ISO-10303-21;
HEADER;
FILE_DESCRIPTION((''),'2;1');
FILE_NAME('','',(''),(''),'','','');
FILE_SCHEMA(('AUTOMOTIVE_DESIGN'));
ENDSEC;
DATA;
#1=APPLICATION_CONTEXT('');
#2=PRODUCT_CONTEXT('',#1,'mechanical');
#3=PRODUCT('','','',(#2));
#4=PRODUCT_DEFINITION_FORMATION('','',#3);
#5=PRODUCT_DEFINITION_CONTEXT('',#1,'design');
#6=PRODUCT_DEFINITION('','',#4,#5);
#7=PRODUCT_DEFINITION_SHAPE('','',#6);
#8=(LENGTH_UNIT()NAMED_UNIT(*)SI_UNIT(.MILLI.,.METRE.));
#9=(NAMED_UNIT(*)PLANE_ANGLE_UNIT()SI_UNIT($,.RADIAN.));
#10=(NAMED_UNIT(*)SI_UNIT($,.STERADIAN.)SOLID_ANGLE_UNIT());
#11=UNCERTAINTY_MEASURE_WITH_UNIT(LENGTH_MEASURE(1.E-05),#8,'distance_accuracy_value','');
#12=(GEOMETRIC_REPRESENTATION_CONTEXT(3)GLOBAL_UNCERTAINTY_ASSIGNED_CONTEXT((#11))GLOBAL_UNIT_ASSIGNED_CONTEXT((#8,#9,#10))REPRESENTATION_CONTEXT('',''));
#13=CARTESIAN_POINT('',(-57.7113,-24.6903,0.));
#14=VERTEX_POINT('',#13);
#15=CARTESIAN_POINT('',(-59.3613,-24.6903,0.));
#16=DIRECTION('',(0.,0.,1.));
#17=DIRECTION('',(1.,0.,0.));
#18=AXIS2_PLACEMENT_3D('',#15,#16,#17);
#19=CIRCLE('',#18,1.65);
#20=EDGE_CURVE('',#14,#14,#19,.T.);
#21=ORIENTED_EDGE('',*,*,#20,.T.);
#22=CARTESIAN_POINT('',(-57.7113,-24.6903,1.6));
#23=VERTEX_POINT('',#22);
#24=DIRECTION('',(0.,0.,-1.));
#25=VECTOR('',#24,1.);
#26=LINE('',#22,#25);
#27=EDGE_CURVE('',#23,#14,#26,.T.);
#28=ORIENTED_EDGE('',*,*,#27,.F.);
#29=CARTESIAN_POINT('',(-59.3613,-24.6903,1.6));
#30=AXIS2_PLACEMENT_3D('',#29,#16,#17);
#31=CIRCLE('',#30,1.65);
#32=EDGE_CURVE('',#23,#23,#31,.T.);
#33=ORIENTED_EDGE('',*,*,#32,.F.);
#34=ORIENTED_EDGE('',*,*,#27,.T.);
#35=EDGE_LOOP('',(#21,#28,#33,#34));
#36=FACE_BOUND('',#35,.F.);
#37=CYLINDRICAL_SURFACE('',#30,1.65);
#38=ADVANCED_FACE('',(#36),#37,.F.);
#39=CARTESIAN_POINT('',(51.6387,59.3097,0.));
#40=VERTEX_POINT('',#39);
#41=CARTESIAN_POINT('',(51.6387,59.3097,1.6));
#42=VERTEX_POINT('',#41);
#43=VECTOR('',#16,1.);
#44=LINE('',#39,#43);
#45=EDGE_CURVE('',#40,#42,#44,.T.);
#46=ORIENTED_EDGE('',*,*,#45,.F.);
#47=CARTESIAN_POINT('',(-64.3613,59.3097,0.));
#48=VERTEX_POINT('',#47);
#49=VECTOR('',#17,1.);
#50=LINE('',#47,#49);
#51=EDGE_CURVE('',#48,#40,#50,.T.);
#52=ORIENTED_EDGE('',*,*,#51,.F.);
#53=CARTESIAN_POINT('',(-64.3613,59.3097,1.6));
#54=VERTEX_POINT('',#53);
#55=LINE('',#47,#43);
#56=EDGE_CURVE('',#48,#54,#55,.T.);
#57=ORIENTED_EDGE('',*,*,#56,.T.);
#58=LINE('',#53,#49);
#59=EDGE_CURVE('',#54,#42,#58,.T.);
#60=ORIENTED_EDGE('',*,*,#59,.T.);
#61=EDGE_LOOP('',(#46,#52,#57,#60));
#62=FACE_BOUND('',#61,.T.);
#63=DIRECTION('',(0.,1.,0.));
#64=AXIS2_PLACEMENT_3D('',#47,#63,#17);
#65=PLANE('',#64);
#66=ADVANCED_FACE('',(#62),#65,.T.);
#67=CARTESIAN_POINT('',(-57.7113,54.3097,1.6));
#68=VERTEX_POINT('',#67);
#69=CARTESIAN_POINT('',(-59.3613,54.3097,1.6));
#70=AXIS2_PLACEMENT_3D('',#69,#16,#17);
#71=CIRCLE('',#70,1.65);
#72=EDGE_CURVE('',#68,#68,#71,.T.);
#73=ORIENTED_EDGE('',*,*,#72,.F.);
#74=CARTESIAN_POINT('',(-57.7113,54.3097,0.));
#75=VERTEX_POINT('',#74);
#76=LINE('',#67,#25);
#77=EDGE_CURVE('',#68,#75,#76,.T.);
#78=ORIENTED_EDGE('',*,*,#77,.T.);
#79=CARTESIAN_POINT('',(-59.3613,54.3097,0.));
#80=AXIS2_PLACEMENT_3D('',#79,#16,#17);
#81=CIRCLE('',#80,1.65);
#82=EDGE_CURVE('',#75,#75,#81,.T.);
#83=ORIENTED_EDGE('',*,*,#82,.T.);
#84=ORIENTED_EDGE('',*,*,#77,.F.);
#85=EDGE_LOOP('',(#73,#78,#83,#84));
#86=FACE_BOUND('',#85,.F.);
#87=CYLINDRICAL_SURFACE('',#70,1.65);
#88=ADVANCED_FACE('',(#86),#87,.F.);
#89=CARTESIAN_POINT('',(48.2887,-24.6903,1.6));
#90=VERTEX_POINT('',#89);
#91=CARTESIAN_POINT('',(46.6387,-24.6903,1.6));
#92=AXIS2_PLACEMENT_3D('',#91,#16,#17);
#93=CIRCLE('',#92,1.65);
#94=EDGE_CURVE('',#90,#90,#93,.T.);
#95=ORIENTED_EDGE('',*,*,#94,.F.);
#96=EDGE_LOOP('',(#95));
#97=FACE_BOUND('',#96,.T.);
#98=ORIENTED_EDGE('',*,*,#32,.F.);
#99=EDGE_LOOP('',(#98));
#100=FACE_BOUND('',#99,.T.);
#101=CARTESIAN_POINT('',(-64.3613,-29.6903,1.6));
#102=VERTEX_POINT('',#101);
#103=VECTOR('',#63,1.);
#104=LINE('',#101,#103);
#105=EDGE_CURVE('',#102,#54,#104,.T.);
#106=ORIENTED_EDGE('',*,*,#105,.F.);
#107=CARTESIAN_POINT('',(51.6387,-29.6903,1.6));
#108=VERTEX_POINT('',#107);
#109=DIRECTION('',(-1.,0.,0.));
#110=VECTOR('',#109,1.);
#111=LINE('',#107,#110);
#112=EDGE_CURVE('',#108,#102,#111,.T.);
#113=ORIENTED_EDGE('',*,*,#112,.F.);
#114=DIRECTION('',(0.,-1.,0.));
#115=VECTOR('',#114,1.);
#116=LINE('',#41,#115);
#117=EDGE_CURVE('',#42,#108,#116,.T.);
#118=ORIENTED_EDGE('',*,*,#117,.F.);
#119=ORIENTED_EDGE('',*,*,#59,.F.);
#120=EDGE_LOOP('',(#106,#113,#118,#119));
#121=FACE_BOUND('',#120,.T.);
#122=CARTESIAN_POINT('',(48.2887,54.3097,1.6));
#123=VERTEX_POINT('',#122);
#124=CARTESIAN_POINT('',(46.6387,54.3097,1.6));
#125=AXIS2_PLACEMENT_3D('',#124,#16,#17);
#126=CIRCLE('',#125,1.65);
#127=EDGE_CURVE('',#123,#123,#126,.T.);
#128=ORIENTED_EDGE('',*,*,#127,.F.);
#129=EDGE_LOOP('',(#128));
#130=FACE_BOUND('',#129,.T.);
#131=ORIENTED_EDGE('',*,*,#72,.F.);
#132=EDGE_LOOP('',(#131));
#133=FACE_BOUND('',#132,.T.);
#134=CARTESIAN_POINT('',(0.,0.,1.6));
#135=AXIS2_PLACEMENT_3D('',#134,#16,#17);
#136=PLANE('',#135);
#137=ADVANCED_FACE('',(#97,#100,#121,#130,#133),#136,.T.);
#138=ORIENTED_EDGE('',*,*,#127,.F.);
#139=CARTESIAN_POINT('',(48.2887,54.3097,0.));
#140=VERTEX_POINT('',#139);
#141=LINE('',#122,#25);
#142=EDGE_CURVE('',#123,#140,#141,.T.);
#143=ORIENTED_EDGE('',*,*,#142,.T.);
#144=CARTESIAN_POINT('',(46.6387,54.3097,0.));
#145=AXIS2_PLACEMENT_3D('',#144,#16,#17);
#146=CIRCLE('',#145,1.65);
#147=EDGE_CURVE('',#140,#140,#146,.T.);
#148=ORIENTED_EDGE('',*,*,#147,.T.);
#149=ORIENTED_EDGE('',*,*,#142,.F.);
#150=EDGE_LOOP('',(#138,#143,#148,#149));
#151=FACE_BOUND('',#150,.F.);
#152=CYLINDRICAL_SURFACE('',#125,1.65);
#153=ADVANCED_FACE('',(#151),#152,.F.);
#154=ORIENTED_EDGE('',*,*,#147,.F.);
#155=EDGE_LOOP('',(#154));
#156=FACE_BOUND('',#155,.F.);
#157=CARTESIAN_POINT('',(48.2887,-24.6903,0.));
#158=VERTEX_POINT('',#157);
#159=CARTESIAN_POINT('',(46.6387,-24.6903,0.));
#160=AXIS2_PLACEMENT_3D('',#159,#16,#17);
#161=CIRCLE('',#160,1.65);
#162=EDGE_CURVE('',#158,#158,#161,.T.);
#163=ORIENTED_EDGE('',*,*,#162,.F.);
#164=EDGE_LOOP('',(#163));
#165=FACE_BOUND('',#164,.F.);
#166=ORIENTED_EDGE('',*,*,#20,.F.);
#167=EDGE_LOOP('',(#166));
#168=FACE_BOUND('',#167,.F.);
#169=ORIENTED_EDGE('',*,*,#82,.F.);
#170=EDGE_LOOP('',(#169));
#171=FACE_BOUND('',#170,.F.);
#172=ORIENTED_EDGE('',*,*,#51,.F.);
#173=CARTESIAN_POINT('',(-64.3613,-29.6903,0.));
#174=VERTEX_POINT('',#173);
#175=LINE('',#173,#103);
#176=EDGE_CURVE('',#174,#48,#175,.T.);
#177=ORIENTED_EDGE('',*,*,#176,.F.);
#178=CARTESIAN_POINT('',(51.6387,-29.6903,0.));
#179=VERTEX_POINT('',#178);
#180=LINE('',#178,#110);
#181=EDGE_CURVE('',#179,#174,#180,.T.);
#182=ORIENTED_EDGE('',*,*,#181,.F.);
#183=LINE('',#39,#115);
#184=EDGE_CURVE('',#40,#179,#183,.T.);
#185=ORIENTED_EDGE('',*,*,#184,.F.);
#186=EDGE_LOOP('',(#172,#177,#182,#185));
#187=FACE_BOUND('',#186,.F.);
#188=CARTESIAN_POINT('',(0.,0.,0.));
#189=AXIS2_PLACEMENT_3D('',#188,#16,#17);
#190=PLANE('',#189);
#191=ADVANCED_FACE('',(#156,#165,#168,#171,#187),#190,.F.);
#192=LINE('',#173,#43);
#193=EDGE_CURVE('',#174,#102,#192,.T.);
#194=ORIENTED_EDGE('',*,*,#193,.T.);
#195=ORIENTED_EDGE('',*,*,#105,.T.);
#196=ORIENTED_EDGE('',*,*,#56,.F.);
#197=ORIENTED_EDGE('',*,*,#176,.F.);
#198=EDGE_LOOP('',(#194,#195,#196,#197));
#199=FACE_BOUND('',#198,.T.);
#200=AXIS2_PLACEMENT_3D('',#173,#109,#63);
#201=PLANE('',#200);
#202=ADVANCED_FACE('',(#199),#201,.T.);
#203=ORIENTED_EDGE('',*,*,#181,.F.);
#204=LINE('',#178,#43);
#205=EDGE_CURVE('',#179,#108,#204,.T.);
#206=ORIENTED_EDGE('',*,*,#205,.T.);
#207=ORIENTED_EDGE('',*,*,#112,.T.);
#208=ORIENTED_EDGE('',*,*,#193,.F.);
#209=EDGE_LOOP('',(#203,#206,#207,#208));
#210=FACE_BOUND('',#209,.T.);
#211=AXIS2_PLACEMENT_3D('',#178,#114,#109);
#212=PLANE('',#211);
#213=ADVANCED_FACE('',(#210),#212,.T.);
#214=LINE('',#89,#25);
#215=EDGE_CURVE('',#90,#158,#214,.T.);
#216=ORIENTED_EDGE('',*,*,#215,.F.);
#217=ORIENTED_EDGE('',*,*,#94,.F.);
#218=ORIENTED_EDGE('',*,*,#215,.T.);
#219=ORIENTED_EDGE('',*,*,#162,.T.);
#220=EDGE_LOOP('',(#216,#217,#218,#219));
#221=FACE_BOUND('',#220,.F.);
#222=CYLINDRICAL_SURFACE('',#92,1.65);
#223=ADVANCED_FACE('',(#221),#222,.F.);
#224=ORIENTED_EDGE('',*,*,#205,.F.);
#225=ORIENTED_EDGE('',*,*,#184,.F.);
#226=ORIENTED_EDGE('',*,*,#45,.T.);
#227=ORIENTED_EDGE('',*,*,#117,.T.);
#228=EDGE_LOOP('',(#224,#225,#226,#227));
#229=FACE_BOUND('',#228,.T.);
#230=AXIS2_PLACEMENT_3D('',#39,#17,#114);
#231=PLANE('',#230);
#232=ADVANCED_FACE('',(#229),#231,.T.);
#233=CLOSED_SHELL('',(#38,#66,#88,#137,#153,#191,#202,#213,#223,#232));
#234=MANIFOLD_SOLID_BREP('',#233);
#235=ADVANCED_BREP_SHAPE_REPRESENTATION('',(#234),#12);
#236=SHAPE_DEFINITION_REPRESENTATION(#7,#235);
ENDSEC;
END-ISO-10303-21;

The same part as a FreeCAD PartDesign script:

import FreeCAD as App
import Part
import Sketcher

V = App.Vector

doc = App.newDocument("Part")
body = doc.addObject("PartDesign::Body", "Body")

# Sketch on XY plane
sketch1 = body.newObject("Sketcher::SketchObject", "Sketch")
sketch1.AttachmentSupport = (doc.getObject("XY_Plane"), [""])
sketch1.MapMode = "FlatFace"
sketch1.addGeometry([
    Part.LineSegment(V(-64, -30, 0), V(52, -30, 0)),
    Part.LineSegment(V(52, -30, 0), V(52, 59, 0)),
    Part.LineSegment(V(52, 59, 0), V(-64, 59, 0)),
    Part.LineSegment(V(-64, 59, 0), V(-64, -30, 0)),
], False)
sketch1.addConstraint([
    Sketcher.Constraint("Coincident", 0, 2, 1, 1),
    Sketcher.Constraint("Coincident", 1, 2, 2, 1),
    Sketcher.Constraint("Coincident", 2, 2, 3, 1),
    Sketcher.Constraint("Coincident", 3, 2, 0, 1),
    Sketcher.Constraint("Horizontal", 0),
    Sketcher.Constraint("Vertical", 1),
    Sketcher.Constraint("Horizontal", 2),
    Sketcher.Constraint("Vertical", 3),
    Sketcher.Constraint("DistanceX", 0, 1, 0, 2, 116.0),
    Sketcher.Constraint("DistanceY", 1, 1, 1, 2, 89.0),
    Sketcher.Constraint("DistanceX", -1, 1, 0, 2, 51.6387),
    Sketcher.Constraint("DistanceY", 0, 2, -1, 1, 29.6903),
])
pad1 = body.newObject("PartDesign::Pad", "Pad")
pad1.Profile = sketch1
pad1.Length = 1.6

# Sketch on XY plane
sketch2 = body.newObject("Sketcher::SketchObject", "Sketch001")
sketch2.AttachmentSupport = (doc.getObject("XY_Plane"), [""])
sketch2.MapMode = "FlatFace"
sketch2.AttachmentOffset = App.Placement(V(0, 0, 1.6), App.Rotation())
sketch2.addGeometry([
    Part.Circle(V(-59.4, 54.3, 0), V(0, 0, 1), 1.6),
    Part.Circle(V(-59.4, -24.7, 0), V(0, 0, 1), 1.6),
    Part.Circle(V(46.6, -24.7, 0), V(0, 0, 1), 1.6),
    Part.Circle(V(46.6, 54.3, 0), V(0, 0, 1), 1.6),
], False)
sketch2.addConstraint([
    Sketcher.Constraint("Equal", 0, 1),
    Sketcher.Constraint("Equal", 1, 2),
    Sketcher.Constraint("Equal", 2, 3),
    Sketcher.Constraint("Horizontal", 1, 3, 2, 3),
    Sketcher.Constraint("Horizontal", 0, 3, 3, 3),
    Sketcher.Constraint("Vertical", 0, 3, 1, 3),
    Sketcher.Constraint("Vertical", 2, 3, 3, 3),
    Sketcher.Constraint("Diameter", 0, 3.3),
    Sketcher.Constraint("DistanceY", 1, 3, 0, 3, 79.0),
    Sketcher.Constraint("DistanceX", 1, 3, 2, 3, 106.0),
    Sketcher.Constraint("DistanceX", 0, 3, -1, 1, 59.3613),
    Sketcher.Constraint("DistanceY", -1, 1, 0, 3, 54.3097),
])
pocket1 = body.newObject("PartDesign::Pocket", "Pocket")
pocket1.Profile = sketch2
pocket1.Length = 1.6

doc.recompute()
